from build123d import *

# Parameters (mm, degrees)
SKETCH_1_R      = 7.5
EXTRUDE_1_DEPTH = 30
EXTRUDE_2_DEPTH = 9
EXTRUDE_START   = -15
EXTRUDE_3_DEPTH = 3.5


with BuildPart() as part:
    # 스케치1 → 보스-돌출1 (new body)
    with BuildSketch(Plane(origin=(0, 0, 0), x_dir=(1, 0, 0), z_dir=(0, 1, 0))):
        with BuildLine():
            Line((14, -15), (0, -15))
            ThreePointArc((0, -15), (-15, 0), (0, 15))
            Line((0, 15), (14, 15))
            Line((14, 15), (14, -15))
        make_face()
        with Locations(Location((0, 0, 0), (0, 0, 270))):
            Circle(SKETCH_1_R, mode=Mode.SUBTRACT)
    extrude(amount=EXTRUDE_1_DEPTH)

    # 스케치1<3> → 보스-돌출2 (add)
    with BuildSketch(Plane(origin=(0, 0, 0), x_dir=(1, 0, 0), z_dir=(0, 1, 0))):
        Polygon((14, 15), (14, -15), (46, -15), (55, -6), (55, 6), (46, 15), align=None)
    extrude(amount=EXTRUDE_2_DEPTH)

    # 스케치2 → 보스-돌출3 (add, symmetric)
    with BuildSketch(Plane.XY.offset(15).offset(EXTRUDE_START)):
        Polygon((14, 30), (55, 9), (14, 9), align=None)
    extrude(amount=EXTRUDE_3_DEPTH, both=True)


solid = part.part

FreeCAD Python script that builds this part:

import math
import FreeCAD as App
import Part
import Sketcher
from FreeCAD import Vector


def add_polygon(sketch, points):
    """Adds a closed chain of lines whose ends are joined by coincident constraints."""
    first, n = sketch.GeometryCount, len(points)
    for a, b in zip(points, points[1:] + points[:1]):
        sketch.addGeometry(Part.LineSegment(App.Vector(*a, 0), App.Vector(*b, 0)), False)
    for i in range(n):
        sketch.addConstraint(Sketcher.Constraint("Coincident", first + i, 2, first + (i + 1) % n, 1))

doc = App.newDocument("Part")
body = doc.addObject("PartDesign::Body", "Body")

sketch1 = body.newObject("Sketcher::SketchObject", "Sketch")
sketch1.AttachmentSupport = (doc.getObject("XZ_Plane"), [""])
sketch1.MapMode = "FlatFace"
sketch1.addGeometry([
    Part.LineSegment(Vector(0, 15, 0), Vector(14, 15, 0)),
    Part.LineSegment(Vector(14, 15, 0), Vector(14, -15, 0)),
    Part.LineSegment(Vector(14, -15, 0), Vector(0, -15, 0)),
    Part.ArcOfCircle(Part.Circle(Vector(0, 0, 0), Vector(0, 0, 1), 15), math.radians(90), math.radians(270)),
    Part.Circle(Vector(0, 0, 0), Vector(0, 0, 1), 8),
], False)
sketch1.addConstraint([
    Sketcher.Constraint("Coincident", 0, 2, 1, 1),
    Sketcher.Constraint("Coincident", 1, 2, 2, 1),
    Sketcher.Constraint("Tangent", 2, 2, 3, 2),
    Sketcher.Constraint("Tangent", 3, 1, 0, 1),
    Sketcher.Constraint("Horizontal", 0),
    Sketcher.Constraint("Vertical", 1),
    Sketcher.Constraint("Horizontal", 2),
    Sketcher.Constraint("Coincident", 3, 3, -1, 1),
    Sketcher.Constraint("Coincident", 4, 3, -1, 1),
    Sketcher.Constraint("Diameter", 4, 15.0),
    Sketcher.Constraint("Radius", 3, 15.0),
    Sketcher.Constraint("DistanceX", 0, 1, 0, 2, 14.0),
])
pad1 = body.newObject("PartDesign::Pad", "Pad")
pad1.Profile = sketch1
pad1.Length = 30
pad1.Reversed = True

sketch2 = body.newObject("Sketcher::SketchObject", "Sketch001")
sketch2.AttachmentSupport = (doc.getObject("XZ_Plane"), [""])
sketch2.MapMode = "FlatFace"
add_polygon(sketch2, [(14, -15), (14, 15), (46, 15), (55, 6), (55, -6), (46, -15)])
sketch2.addConstraint([
    Sketcher.Constraint("Vertical", 0),
    Sketcher.Constraint("Horizontal", 1),
    Sketcher.Constraint("Vertical", 3),
    Sketcher.Constraint("Horizontal", 5),
    Sketcher.Constraint("Symmetric", 1, 2, 4, 2, -1),
    Sketcher.Constraint("Perpendicular", 2, 4),
    Sketcher.Constraint("Equal", 2, 4),
    Sketcher.Constraint("DistanceX", 1, 1, 1, 2, 32.0),
    Sketcher.Constraint("DistanceY", 0, 1, 0, 2, 30.0),
    Sketcher.Constraint("DistanceY", 3, 2, 3, 1, 12.0),
    Sketcher.Constraint("DistanceX", -1, 1, 0, 2, 14.0),
])
pad2 = body.newObject("PartDesign::Pad", "Pad001")
pad2.Profile = sketch2
pad2.Length = 9
pad2.Reversed = True

sketch3 = body.newObject("Sketcher::SketchObject", "Sketch002")
sketch3.AttachmentSupport = (doc.getObject("XY_Plane"), [""])
sketch3.MapMode = "FlatFace"
add_polygon(sketch3, [(55, 9), (14, 30), (14, 9)])
sketch3.addConstraint([
    Sketcher.Constraint("Vertical", 1),
    Sketcher.Constraint("Horizontal", 2),
    Sketcher.Constraint("DistanceX", 2, 1, 2, 2, 41.0),
    Sketcher.Constraint("DistanceY", 1, 2, 1, 1, 21.0),
    Sketcher.Constraint("DistanceX", -1, 1, 0, 2, 14.0),
    Sketcher.Constraint("DistanceY", -1, 1, 0, 2, 30.0),
])
pad3 = body.newObject("PartDesign::Pad", "Pad002")
pad3.Profile = sketch3
pad3.Length = 7
pad3.Midplane = True

doc.recompute()
